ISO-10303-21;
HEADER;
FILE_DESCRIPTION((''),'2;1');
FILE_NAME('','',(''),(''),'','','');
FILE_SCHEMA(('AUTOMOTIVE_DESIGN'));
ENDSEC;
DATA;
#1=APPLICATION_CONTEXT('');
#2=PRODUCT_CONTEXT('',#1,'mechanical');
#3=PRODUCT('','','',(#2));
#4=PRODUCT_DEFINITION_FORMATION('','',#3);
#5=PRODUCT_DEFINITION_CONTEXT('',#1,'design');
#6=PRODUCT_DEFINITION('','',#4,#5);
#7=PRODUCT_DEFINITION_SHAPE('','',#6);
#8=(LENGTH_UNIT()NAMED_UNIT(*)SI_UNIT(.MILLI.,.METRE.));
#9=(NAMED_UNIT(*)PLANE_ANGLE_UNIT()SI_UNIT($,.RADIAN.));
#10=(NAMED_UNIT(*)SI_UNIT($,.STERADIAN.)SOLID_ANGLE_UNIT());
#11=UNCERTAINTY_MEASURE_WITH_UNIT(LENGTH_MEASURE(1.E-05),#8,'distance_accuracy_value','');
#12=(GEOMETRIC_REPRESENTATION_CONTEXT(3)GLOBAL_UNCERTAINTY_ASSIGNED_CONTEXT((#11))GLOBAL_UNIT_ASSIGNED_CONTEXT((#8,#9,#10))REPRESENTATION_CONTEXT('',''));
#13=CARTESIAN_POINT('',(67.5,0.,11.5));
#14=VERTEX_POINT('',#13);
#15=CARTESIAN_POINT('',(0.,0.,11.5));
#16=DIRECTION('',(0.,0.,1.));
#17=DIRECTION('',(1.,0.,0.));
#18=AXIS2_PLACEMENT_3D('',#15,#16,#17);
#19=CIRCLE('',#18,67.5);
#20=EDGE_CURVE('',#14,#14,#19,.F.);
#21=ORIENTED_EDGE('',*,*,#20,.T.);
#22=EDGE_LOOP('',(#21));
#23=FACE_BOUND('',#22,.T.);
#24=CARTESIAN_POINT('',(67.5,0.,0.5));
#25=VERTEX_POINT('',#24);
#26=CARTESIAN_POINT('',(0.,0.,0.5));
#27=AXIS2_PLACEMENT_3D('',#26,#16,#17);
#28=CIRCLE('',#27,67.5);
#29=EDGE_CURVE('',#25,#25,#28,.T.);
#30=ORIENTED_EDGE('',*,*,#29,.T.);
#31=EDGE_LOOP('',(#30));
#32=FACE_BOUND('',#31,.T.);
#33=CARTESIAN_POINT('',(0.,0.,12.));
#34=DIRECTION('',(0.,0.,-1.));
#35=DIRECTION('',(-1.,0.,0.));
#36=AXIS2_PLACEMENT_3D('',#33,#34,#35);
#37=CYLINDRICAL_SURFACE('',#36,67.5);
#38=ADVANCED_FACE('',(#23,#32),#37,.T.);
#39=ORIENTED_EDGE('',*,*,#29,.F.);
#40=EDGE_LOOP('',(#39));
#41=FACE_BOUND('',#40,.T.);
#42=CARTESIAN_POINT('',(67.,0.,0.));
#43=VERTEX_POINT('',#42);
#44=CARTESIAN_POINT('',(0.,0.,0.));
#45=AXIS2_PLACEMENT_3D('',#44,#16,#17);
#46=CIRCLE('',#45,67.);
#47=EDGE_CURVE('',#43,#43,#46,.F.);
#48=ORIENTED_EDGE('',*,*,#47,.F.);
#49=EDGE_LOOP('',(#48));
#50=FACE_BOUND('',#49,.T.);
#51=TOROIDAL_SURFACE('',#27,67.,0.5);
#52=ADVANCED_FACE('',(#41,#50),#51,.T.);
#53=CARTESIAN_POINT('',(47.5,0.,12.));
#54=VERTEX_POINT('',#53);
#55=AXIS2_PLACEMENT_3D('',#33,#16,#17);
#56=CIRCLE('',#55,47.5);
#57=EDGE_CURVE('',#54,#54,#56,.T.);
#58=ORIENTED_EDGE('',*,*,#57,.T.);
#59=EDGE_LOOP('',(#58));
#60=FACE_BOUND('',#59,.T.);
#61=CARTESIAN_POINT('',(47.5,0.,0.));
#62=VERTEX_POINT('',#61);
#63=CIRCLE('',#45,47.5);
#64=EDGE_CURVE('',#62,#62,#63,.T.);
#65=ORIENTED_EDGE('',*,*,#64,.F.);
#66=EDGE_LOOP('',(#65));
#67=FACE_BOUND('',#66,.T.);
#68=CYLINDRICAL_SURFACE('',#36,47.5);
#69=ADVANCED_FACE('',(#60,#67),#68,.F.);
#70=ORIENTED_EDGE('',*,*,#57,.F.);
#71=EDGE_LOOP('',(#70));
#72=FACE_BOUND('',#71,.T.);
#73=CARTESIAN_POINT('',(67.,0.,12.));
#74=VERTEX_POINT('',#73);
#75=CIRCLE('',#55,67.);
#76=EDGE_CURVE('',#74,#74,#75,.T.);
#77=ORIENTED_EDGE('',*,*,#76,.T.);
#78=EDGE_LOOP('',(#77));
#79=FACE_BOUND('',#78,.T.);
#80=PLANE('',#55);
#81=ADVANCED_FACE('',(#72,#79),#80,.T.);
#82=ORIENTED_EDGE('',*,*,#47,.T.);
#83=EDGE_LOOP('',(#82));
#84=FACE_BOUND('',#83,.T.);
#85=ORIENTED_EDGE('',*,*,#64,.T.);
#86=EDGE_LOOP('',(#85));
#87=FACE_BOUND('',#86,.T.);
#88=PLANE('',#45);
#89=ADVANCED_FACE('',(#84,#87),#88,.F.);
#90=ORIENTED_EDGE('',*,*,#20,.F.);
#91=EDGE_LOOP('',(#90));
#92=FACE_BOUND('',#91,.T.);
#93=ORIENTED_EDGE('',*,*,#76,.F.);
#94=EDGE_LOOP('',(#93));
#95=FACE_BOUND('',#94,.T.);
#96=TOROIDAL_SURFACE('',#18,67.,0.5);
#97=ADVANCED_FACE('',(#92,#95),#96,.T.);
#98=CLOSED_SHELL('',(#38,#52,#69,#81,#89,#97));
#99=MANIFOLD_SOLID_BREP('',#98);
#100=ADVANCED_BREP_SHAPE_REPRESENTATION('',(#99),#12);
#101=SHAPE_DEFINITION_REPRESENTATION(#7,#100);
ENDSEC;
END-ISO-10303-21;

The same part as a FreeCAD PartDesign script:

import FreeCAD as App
import Part
import Sketcher
from FreeCAD import Vector


def edges_at(feature, points):
    """Names of the edges that pass closest to the given points."""
    edges = feature.Shape.Edges
    near = lambda p: min(range(len(edges)), key=lambda i: edges[i].distToShape(Part.Vertex(*p))[0])
    return sorted({f"Edge{near(p) + 1}" for p in points})

doc = App.newDocument("Part")
body = doc.addObject("PartDesign::Body", "Body")

# Sketch on XY plane
sketch1 = doc.addObject("Sketcher::SketchObject", "Sketch")
body.addObject(sketch1)
sketch1.AttachmentSupport = (doc.XY_Plane, [""])
sketch1.MapMode = "FlatFace"
sketch1.addGeometry([
    Part.Circle(Vector(0, 0, 0), Vector(0, 0, 1), 67.5),
    Part.Circle(Vector(0, 0, 0), Vector(0, 0, 1), 47.5),
], False)
sketch1.addConstraint([
    Sketcher.Constraint("Coincident", 0, 3, -1, 1),
    Sketcher.Constraint("Coincident", 1, 3, -1, 1),
    Sketcher.Constraint("Diameter", 0, 135.0),
    Sketcher.Constraint("Diameter", 1, 95.0),
])
pad1 = doc.addObject("PartDesign::Pad", "Pad")
body.addObject(pad1)
pad1.Profile = sketch1
pad1.Length = 12
doc.recompute()

fillet = doc.addObject("PartDesign::Fillet", "Fillet")
body.addObject(fillet)
fillet.Base = (pad1, edges_at(pad1, [(-67.5, 0, 0), (-67.5, 0, 12)]))
fillet.Radius = 0.5

doc.recompute()
